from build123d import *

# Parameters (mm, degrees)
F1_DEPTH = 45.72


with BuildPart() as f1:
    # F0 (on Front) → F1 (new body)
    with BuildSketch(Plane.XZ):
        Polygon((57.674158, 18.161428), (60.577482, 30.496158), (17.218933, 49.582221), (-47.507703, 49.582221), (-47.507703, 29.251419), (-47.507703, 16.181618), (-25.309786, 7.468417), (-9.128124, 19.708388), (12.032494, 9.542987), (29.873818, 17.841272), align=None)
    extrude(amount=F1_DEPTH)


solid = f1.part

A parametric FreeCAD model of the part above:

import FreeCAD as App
import Part
import Sketcher

V = App.Vector
Q = App.Units.Quantity


def add_polygon(sketch, points):
    """Adds a closed chain of lines whose ends are joined by coincident constraints."""
    first, n = sketch.GeometryCount, len(points)
    for a, b in zip(points, points[1:] + points[:1]):
        sketch.addGeometry(Part.LineSegment(App.Vector(*a, 0), App.Vector(*b, 0)), False)
    for i in range(n):
        sketch.addConstraint(Sketcher.Constraint("Coincident", first + i, 2, first + (i + 1) % n, 1))

doc = App.newDocument("Part")
params = doc.addObject("Spreadsheet::Sheet", "Params")
for row, (alias, value) in enumerate([
    ("pad1_length", "1.8 in"),
], start=1):
    params.set(f"A{row}", alias)
    params.set(f"B{row}", "=" + value)
    params.setAlias(f"B{row}", alias)

body = doc.addObject("PartDesign::Body", "Body")

# Sketch on XZ plane
sketch1 = body.newObject("Sketcher::SketchObject", "Sketch")
sketch1.AttachmentSupport = (doc.getObject("XZ_Plane"), [""])
sketch1.MapMode = "FlatFace"
add_polygon(sketch1, [(58, 18), (61, 30), (17, 50), (-48, 50), (-48, 16), (-25, 7), (-9, 20), (12, 10), (30, 18)])  # lines 0-8
sketch1.addConstraint([
    Sketcher.Constraint("Horizontal", 2),
    Sketcher.Constraint("Vertical", 3),
    Sketcher.Constraint("DistanceX", 5, 2, -1, 1, Q("0.359375 in")),
    Sketcher.Constraint("DistanceY", 4, 2, 3, 2, Q("8.713201 mm")),
    Sketcher.Constraint("DistanceY", 6, 2, 5, 2, Q("10.165401 mm")),
    Sketcher.Constraint("Distance", 4, Q("23.846748 mm")),
    Sketcher.Constraint("Distance", 5, Q("20.289482 mm")),
    Sketcher.Constraint("Distance", 6, Q("23.475671 mm")),
    Sketcher.Constraint("DistanceX", 2, 2, 2, 1, Q("64.726636 mm")),
    Sketcher.Constraint("DistanceY", 3, 2, 3, 1, Q("33.400603 mm")),
    Sketcher.Constraint("DistanceY", -1, 1, 0, 2, Q("30.496158 mm")),
    Sketcher.Constraint("DistanceY", -1, 1, 1, 2, Q("49.582221 mm")),
    Sketcher.Constraint("DistanceX", -1, 1, 7, 2, Q("29.873818 mm")),
    Sketcher.Constraint("DistanceY", -1, 1, 7, 2, Q("17.841272 mm")),
    Sketcher.Constraint("DistanceY", -1, 1, 8, 2, Q("18.161428 mm")),
    Sketcher.Constraint("DistanceX", 1, 2, 0, 2, Q("43.358549 mm")),
    Sketcher.Constraint("DistanceX", 4, 2, 5, 2, Q("16.181662 mm")),
    Sketcher.Constraint("DistanceX", 7, 2, 8, 2, Q("27.80034 mm")),
])
pad1 = body.newObject("PartDesign::Pad", "Pad")
pad1.Profile = sketch1
pad1.setExpression("Length", "Params.pad1_length")

doc.recompute()
